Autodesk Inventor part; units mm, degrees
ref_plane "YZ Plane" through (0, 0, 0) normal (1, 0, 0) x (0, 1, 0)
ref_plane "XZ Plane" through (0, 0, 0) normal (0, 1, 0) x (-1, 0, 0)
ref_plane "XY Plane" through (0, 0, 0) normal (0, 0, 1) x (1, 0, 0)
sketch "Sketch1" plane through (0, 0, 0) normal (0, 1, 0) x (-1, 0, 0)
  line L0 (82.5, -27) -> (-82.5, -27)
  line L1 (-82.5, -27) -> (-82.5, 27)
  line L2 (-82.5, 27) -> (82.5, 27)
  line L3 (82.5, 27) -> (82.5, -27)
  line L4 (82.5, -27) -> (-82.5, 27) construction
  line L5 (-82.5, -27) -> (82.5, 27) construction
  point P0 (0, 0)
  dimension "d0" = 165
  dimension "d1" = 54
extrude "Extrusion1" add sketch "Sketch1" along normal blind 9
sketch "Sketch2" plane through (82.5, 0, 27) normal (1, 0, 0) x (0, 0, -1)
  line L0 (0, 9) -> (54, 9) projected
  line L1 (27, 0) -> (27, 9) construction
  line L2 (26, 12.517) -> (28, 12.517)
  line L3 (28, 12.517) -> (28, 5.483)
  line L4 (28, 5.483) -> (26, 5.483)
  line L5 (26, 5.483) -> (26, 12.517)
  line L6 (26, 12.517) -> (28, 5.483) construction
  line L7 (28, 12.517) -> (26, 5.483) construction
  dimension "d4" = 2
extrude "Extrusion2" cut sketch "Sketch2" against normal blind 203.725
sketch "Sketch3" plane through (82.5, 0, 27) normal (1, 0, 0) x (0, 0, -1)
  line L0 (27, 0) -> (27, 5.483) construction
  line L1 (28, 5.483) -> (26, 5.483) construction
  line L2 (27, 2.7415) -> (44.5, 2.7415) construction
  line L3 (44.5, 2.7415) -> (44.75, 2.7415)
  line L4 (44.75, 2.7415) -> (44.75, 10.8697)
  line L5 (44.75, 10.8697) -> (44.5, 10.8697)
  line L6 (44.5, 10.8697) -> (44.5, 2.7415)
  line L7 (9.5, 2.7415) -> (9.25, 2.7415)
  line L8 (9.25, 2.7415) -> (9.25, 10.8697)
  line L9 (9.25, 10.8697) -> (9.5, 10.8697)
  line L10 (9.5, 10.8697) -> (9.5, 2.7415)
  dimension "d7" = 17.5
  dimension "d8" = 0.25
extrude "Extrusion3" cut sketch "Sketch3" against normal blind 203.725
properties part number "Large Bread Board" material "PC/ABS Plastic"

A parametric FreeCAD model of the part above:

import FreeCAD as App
import Part
import Sketcher

V = App.Vector

doc = App.newDocument("Part")
body = doc.addObject("PartDesign::Body", "Body")

sketch1 = body.newObject("Sketcher::SketchObject", "Sketch")
sketch1.AttachmentSupport = (doc.getObject("XZ_Plane"), [""])
sketch1.MapMode = "FlatFace"
sketch1.addGeometry(Part.LineSegment(V(82, -27, 0), V(-82, -27, 0)), False)
sketch1.addGeometry(Part.LineSegment(V(-82, -27, 0), V(-82, 27, 0)), False)
sketch1.addGeometry(Part.LineSegment(V(-82, 27, 0), V(82, 27, 0)), False)
sketch1.addGeometry(Part.LineSegment(V(82, 27, 0), V(82, -27, 0)), False)
sketch1.addConstraint(Sketcher.Constraint("Coincident", 0, 2, 1, 1))
sketch1.addConstraint(Sketcher.Constraint("Coincident", 1, 2, 2, 1))
sketch1.addConstraint(Sketcher.Constraint("Coincident", 2, 2, 3, 1))
sketch1.addConstraint(Sketcher.Constraint("Coincident", 3, 2, 0, 1))
sketch1.addConstraint(Sketcher.Constraint("Horizontal", 0))
sketch1.addConstraint(Sketcher.Constraint("Vertical", 1))
sketch1.addConstraint(Sketcher.Constraint("Horizontal", 2))
sketch1.addConstraint(Sketcher.Constraint("Vertical", 3))
sketch1.addConstraint(Sketcher.Constraint("Symmetric", 0, 2, 2, 2, -1, 1))
sketch1.addConstraint(Sketcher.Constraint("DistanceX", 0, 2, 0, 1, 165.0))
sketch1.addConstraint(Sketcher.Constraint("DistanceY", 1, 1, 1, 2, 54.0))
pad1 = body.newObject("PartDesign::Pad", "Pad")
pad1.Profile = sketch1
pad1.Length = 9
pad1.Reversed = True

sketch2 = body.newObject("Sketcher::SketchObject", "Sketch001")
sketch2.AttachmentSupport = (doc.getObject("YZ_Plane"), [""])
sketch2.MapMode = "FlatFace"
sketch2.AttachmentOffset = App.Placement(V(0, 0, 82.5), App.Rotation())
sketch2.addGeometry(Part.LineSegment(V(12.5, 1, 0), V(5.5, 1, 0)), False)
sketch2.addGeometry(Part.LineSegment(V(5.5, 1, 0), V(5.5, -1, 0)), False)
sketch2.addGeometry(Part.LineSegment(V(5.5, -1, 0), V(12.5, -1, 0)), False)
sketch2.addGeometry(Part.LineSegment(V(12.5, -1, 0), V(12.5, 1, 0)), False)
sketch2.addConstraint(Sketcher.Constraint("Coincident", 0, 2, 1, 1))
sketch2.addConstraint(Sketcher.Constraint("Coincident", 1, 2, 2, 1))
sketch2.addConstraint(Sketcher.Constraint("Coincident", 2, 2, 3, 1))
sketch2.addConstraint(Sketcher.Constraint("Coincident", 3, 2, 0, 1))
sketch2.addConstraint(Sketcher.Constraint("Horizontal", 0))
sketch2.addConstraint(Sketcher.Constraint("Vertical", 1))
sketch2.addConstraint(Sketcher.Constraint("Horizontal", 2))
sketch2.addConstraint(Sketcher.Constraint("Vertical", 3))
sketch2.addConstraint(Sketcher.Constraint("DistanceY", 1, 2, 1, 1, 2.0))
sketch2.addConstraint(Sketcher.Constraint("DistanceY", -1, 1, 0, 2, 1.0))
sketch2.addConstraint(Sketcher.Constraint("DistanceX", 0, 2, 0, 1, 7.034))
sketch2.addConstraint(Sketcher.Constraint("DistanceX", -1, 1, 0, 2, 5.483))
pocket1 = body.newObject("PartDesign::Pocket", "Pocket")
pocket1.Profile = sketch2
pocket1.Length = 203.725

sketch3 = body.newObject("Sketcher::SketchObject", "Sketch002")
sketch3.AttachmentSupport = (doc.getObject("YZ_Plane"), [""])
sketch3.MapMode = "FlatFace"
sketch3.AttachmentOffset = App.Placement(V(0, 0, 82.5), App.Rotation())
sketch3.addGeometry(Part.LineSegment(V(10.87, -17.5, 0), V(2.74, -17.5, 0)), False)
sketch3.addGeometry(Part.LineSegment(V(2.74, -17.5, 0), V(2.74, -17.75, 0)), False)
sketch3.addGeometry(Part.LineSegment(V(2.74, -17.75, 0), V(10.87, -17.75, 0)), False)
sketch3.addGeometry(Part.LineSegment(V(10.87, -17.75, 0), V(10.87, -17.5, 0)), False)
sketch3.addGeometry(Part.LineSegment(V(2.74, 17.75, 0), V(2.74, 17.5, 0)), False)
sketch3.addGeometry(Part.LineSegment(V(2.74, 17.5, 0), V(10.87, 17.5, 0)), False)
sketch3.addGeometry(Part.LineSegment(V(10.87, 17.5, 0), V(10.87, 17.75, 0)), False)
sketch3.addGeometry(Part.LineSegment(V(10.87, 17.75, 0), V(2.74, 17.75, 0)), False)
sketch3.addConstraint(Sketcher.Constraint("Coincident", 0, 2, 1, 1))
sketch3.addConstraint(Sketcher.Constraint("Coincident", 1, 2, 2, 1))
sketch3.addConstraint(Sketcher.Constraint("Coincident", 2, 2, 3, 1))
sketch3.addConstraint(Sketcher.Constraint("Coincident", 3, 2, 0, 1))
sketch3.addConstraint(Sketcher.Constraint("Coincident", 4, 2, 5, 1))
sketch3.addConstraint(Sketcher.Constraint("Coincident", 5, 2, 6, 1))
sketch3.addConstraint(Sketcher.Constraint("Coincident", 6, 2, 7, 1))
sketch3.addConstraint(Sketcher.Constraint("Coincident", 7, 2, 4, 1))
sketch3.addConstraint(Sketcher.Constraint("Horizontal", 0))
sketch3.addConstraint(Sketcher.Constraint("Vertical", 1))
sketch3.addConstraint(Sketcher.Constraint("Horizontal", 2))
sketch3.addConstraint(Sketcher.Constraint("Vertical", 3))
sketch3.addConstraint(Sketcher.Constraint("Vertical", 4))
sketch3.addConstraint(Sketcher.Constraint("Horizontal", 5))
sketch3.addConstraint(Sketcher.Constraint("Vertical", 6))
sketch3.addConstraint(Sketcher.Constraint("Horizontal", 7))
sketch3.addConstraint(Sketcher.Constraint("Symmetric", 0, 2, 4, 2, -1))
sketch3.addConstraint(Sketcher.Constraint("Symmetric", 2, 2, 6, 2, -1))
sketch3.addConstraint(Sketcher.Constraint("DistanceY", 1, 2, 1, 1, 0.25))
sketch3.addConstraint(Sketcher.Constraint("DistanceY", 0, 2, -1, 1, 17.5))
sketch3.addConstraint(Sketcher.Constraint("DistanceX", 0, 2, 0, 1, 8.1282))
sketch3.addConstraint(Sketcher.Constraint("DistanceX", -1, 1, 0, 2, 2.7415))
pocket2 = body.newObject("PartDesign::Pocket", "Pocket001")
pocket2.Profile = sketch3
pocket2.Length = 203.725

doc.recompute()
